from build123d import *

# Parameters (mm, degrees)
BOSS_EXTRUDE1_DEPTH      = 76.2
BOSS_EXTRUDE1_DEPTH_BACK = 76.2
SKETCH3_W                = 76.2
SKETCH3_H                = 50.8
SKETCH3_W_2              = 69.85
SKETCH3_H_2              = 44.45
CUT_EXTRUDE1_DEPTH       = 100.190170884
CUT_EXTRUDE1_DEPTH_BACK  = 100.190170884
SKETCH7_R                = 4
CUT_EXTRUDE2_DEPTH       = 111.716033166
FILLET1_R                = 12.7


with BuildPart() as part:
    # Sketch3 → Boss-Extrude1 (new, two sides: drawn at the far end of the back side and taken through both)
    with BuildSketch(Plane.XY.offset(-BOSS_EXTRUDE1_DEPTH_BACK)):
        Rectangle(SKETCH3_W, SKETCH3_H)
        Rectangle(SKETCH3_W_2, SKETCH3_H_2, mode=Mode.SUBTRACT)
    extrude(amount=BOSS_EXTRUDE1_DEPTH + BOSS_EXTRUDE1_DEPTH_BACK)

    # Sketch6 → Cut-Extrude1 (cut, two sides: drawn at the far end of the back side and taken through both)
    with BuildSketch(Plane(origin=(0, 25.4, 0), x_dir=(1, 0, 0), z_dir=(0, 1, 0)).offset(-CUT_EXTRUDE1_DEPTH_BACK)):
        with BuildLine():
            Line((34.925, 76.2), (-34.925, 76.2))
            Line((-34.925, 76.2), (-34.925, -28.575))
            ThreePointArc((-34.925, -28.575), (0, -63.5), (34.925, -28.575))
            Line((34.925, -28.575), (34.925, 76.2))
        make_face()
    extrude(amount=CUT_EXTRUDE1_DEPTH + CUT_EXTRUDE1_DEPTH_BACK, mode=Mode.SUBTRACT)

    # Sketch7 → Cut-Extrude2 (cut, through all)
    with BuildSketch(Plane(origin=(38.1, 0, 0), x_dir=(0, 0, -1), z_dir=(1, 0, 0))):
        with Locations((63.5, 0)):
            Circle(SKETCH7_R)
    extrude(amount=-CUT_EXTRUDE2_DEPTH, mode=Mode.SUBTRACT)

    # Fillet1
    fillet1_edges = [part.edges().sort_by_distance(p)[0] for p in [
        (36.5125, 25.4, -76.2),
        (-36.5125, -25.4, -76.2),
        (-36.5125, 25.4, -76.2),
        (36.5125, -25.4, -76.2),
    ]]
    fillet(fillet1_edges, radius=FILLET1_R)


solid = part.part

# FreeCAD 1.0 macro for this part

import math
import FreeCAD as App
import Part
import Sketcher

V = App.Vector
Q = App.Units.Quantity


def edges_at(feature, points):
    """Names of the edges that pass closest to the given points."""
    edges = feature.Shape.Edges
    near = lambda p: min(range(len(edges)), key=lambda i: edges[i].distToShape(Part.Vertex(*p))[0])
    return sorted({f"Edge{near(p) + 1}" for p in points})


def add_polygon(sketch, points):
    """Adds a closed chain of lines whose ends are joined by coincident constraints."""
    first, n = sketch.GeometryCount, len(points)
    for a, b in zip(points, points[1:] + points[:1]):
        sketch.addGeometry(Part.LineSegment(App.Vector(*a, 0), App.Vector(*b, 0)), False)
    for i in range(n):
        sketch.addConstraint(Sketcher.Constraint("Coincident", first + i, 2, first + (i + 1) % n, 1))

doc = App.newDocument("Part")
body = doc.addObject("PartDesign::Body", "Body")

# Sketch on XY plane
sketch1 = body.newObject("Sketcher::SketchObject", "Sketch")
sketch1.AttachmentSupport = (doc.getObject("XY_Plane"), [""])
sketch1.MapMode = "FlatFace"
add_polygon(sketch1, [(-38.1, 25.4), (-38.1, -25.4), (38.1, -25.4), (38.1, 25.4)])  # lines 0-3
add_polygon(sketch1, [(34.925, -22.225), (-34.925, -22.225), (-34.925, 22.225), (34.925, 22.225)])  # lines 4-7
sketch1.addConstraint(Sketcher.Constraint("Vertical", 0))
sketch1.addConstraint(Sketcher.Constraint("Horizontal", 1))
sketch1.addConstraint(Sketcher.Constraint("Vertical", 2))
sketch1.addConstraint(Sketcher.Constraint("Horizontal", 3))
sketch1.addConstraint(Sketcher.Constraint("Horizontal", 4))
sketch1.addConstraint(Sketcher.Constraint("Vertical", 5))
sketch1.addConstraint(Sketcher.Constraint("Horizontal", 6))
sketch1.addConstraint(Sketcher.Constraint("Vertical", 7))
sketch1.addConstraint(Sketcher.Constraint("Symmetric", 0, 2, 2, 2, -1, 1))
sketch1.addConstraint(Sketcher.Constraint("Symmetric", 4, 2, 6, 2, -1, 1))
sketch1.addConstraint(Sketcher.Constraint("DistanceX", 1, 1, 1, 2, Q("3 in")))
sketch1.addConstraint(Sketcher.Constraint("DistanceY", 0, 2, 0, 1, Q("2 in")))
sketch1.addConstraint(Sketcher.Constraint("DistanceX", 4, 2, 4, 1, Q("2.75 in")))
sketch1.addConstraint(Sketcher.Constraint("DistanceY", 5, 1, 5, 2, Q("1.75 in")))
pad1 = body.newObject("PartDesign::Pad", "Pad")
pad1.Profile = sketch1
pad1.Type = "TwoLengths"
pad1.Length = Q("3 in")
pad1.Length2 = Q("3 in")

# Sketch on XZ plane
sketch2 = body.newObject("Sketcher::SketchObject", "Sketch001")
sketch2.AttachmentSupport = (doc.getObject("XZ_Plane"), [""])
sketch2.MapMode = "FlatFace"
sketch2.AttachmentOffset = App.Placement(V(0, 0, -1 * 25.4), App.Rotation())
sketch2.addGeometry(Part.LineSegment(V(34.925, -76.2, 0), V(-34.925, -76.2, 0)), False)
sketch2.addGeometry(Part.LineSegment(V(-34.925, -76.2, 0), V(-34.925, 28.575, 0)), False)
sketch2.addGeometry(Part.ArcOfCircle(Part.Circle(V(0, 28.575, 0), V(0, 0, 1), 34.925), math.radians(0), math.radians(180)), False)
sketch2.addGeometry(Part.LineSegment(V(34.925, 28.575, 0), V(34.925, -76.2, 0)), False)
sketch2.addConstraint(Sketcher.Constraint("Coincident", 0, 2, 1, 1))
sketch2.addConstraint(Sketcher.Constraint("Tangent", 1, 2, 2, 2))
sketch2.addConstraint(Sketcher.Constraint("Tangent", 2, 1, 3, 1))
sketch2.addConstraint(Sketcher.Constraint("Coincident", 3, 2, 0, 1))
sketch2.addConstraint(Sketcher.Constraint("Horizontal", 0))
sketch2.addConstraint(Sketcher.Constraint("Vertical", 1))
sketch2.addConstraint(Sketcher.Constraint("Vertical", 3))
sketch2.addConstraint(Sketcher.Constraint("PointOnObject", 2, 3, -2))
sketch2.addConstraint(Sketcher.Constraint("DistanceY", 0, 2, -1, 1, Q("3 in")))
sketch2.addConstraint(Sketcher.Constraint("Radius", 2, Q("1.375 in")))
sketch2.addConstraint(Sketcher.Constraint("DistanceY", 1, 1, 1, 2, Q("4.125 in")))
pocket1 = body.newObject("PartDesign::Pocket", "Pocket")
pocket1.Profile = sketch2
pocket1.Type = "ThroughAll"
pocket1.Midplane = True

# Sketch on YZ plane
sketch3 = body.newObject("Sketcher::SketchObject", "Sketch002")
sketch3.AttachmentSupport = (doc.getObject("YZ_Plane"), [""])
sketch3.MapMode = "FlatFace"
sketch3.AttachmentOffset = App.Placement(V(0, 0, 1.5 * 25.4), App.Rotation())
sketch3.addGeometry(Part.Circle(V(0, -63.5, 0), V(0, 0, 1), 4), False)
sketch3.addConstraint(Sketcher.Constraint("PointOnObject", 0, 3, -2))
sketch3.addConstraint(Sketcher.Constraint("DistanceY", 0, 3, -1, 1, Q("2.5 in")))
sketch3.addConstraint(Sketcher.Constraint("Diameter", 0, 8.0))
pocket2 = body.newObject("PartDesign::Pocket", "Pocket001")
pocket2.Profile = sketch3
pocket2.Type = "ThroughAll"
doc.recompute()

fillet = body.newObject("PartDesign::Fillet", "Fillet")
fillet.Base = (pocket2, edges_at(pocket2, [
    (36.513, 25.4, -76.2),
    (-36.513, -25.4, -76.2),
    (-36.513, 25.4, -76.2),
    (36.513, -25.4, -76.2),
]))
fillet.Radius = Q("0.5 in")

doc.recompute()
